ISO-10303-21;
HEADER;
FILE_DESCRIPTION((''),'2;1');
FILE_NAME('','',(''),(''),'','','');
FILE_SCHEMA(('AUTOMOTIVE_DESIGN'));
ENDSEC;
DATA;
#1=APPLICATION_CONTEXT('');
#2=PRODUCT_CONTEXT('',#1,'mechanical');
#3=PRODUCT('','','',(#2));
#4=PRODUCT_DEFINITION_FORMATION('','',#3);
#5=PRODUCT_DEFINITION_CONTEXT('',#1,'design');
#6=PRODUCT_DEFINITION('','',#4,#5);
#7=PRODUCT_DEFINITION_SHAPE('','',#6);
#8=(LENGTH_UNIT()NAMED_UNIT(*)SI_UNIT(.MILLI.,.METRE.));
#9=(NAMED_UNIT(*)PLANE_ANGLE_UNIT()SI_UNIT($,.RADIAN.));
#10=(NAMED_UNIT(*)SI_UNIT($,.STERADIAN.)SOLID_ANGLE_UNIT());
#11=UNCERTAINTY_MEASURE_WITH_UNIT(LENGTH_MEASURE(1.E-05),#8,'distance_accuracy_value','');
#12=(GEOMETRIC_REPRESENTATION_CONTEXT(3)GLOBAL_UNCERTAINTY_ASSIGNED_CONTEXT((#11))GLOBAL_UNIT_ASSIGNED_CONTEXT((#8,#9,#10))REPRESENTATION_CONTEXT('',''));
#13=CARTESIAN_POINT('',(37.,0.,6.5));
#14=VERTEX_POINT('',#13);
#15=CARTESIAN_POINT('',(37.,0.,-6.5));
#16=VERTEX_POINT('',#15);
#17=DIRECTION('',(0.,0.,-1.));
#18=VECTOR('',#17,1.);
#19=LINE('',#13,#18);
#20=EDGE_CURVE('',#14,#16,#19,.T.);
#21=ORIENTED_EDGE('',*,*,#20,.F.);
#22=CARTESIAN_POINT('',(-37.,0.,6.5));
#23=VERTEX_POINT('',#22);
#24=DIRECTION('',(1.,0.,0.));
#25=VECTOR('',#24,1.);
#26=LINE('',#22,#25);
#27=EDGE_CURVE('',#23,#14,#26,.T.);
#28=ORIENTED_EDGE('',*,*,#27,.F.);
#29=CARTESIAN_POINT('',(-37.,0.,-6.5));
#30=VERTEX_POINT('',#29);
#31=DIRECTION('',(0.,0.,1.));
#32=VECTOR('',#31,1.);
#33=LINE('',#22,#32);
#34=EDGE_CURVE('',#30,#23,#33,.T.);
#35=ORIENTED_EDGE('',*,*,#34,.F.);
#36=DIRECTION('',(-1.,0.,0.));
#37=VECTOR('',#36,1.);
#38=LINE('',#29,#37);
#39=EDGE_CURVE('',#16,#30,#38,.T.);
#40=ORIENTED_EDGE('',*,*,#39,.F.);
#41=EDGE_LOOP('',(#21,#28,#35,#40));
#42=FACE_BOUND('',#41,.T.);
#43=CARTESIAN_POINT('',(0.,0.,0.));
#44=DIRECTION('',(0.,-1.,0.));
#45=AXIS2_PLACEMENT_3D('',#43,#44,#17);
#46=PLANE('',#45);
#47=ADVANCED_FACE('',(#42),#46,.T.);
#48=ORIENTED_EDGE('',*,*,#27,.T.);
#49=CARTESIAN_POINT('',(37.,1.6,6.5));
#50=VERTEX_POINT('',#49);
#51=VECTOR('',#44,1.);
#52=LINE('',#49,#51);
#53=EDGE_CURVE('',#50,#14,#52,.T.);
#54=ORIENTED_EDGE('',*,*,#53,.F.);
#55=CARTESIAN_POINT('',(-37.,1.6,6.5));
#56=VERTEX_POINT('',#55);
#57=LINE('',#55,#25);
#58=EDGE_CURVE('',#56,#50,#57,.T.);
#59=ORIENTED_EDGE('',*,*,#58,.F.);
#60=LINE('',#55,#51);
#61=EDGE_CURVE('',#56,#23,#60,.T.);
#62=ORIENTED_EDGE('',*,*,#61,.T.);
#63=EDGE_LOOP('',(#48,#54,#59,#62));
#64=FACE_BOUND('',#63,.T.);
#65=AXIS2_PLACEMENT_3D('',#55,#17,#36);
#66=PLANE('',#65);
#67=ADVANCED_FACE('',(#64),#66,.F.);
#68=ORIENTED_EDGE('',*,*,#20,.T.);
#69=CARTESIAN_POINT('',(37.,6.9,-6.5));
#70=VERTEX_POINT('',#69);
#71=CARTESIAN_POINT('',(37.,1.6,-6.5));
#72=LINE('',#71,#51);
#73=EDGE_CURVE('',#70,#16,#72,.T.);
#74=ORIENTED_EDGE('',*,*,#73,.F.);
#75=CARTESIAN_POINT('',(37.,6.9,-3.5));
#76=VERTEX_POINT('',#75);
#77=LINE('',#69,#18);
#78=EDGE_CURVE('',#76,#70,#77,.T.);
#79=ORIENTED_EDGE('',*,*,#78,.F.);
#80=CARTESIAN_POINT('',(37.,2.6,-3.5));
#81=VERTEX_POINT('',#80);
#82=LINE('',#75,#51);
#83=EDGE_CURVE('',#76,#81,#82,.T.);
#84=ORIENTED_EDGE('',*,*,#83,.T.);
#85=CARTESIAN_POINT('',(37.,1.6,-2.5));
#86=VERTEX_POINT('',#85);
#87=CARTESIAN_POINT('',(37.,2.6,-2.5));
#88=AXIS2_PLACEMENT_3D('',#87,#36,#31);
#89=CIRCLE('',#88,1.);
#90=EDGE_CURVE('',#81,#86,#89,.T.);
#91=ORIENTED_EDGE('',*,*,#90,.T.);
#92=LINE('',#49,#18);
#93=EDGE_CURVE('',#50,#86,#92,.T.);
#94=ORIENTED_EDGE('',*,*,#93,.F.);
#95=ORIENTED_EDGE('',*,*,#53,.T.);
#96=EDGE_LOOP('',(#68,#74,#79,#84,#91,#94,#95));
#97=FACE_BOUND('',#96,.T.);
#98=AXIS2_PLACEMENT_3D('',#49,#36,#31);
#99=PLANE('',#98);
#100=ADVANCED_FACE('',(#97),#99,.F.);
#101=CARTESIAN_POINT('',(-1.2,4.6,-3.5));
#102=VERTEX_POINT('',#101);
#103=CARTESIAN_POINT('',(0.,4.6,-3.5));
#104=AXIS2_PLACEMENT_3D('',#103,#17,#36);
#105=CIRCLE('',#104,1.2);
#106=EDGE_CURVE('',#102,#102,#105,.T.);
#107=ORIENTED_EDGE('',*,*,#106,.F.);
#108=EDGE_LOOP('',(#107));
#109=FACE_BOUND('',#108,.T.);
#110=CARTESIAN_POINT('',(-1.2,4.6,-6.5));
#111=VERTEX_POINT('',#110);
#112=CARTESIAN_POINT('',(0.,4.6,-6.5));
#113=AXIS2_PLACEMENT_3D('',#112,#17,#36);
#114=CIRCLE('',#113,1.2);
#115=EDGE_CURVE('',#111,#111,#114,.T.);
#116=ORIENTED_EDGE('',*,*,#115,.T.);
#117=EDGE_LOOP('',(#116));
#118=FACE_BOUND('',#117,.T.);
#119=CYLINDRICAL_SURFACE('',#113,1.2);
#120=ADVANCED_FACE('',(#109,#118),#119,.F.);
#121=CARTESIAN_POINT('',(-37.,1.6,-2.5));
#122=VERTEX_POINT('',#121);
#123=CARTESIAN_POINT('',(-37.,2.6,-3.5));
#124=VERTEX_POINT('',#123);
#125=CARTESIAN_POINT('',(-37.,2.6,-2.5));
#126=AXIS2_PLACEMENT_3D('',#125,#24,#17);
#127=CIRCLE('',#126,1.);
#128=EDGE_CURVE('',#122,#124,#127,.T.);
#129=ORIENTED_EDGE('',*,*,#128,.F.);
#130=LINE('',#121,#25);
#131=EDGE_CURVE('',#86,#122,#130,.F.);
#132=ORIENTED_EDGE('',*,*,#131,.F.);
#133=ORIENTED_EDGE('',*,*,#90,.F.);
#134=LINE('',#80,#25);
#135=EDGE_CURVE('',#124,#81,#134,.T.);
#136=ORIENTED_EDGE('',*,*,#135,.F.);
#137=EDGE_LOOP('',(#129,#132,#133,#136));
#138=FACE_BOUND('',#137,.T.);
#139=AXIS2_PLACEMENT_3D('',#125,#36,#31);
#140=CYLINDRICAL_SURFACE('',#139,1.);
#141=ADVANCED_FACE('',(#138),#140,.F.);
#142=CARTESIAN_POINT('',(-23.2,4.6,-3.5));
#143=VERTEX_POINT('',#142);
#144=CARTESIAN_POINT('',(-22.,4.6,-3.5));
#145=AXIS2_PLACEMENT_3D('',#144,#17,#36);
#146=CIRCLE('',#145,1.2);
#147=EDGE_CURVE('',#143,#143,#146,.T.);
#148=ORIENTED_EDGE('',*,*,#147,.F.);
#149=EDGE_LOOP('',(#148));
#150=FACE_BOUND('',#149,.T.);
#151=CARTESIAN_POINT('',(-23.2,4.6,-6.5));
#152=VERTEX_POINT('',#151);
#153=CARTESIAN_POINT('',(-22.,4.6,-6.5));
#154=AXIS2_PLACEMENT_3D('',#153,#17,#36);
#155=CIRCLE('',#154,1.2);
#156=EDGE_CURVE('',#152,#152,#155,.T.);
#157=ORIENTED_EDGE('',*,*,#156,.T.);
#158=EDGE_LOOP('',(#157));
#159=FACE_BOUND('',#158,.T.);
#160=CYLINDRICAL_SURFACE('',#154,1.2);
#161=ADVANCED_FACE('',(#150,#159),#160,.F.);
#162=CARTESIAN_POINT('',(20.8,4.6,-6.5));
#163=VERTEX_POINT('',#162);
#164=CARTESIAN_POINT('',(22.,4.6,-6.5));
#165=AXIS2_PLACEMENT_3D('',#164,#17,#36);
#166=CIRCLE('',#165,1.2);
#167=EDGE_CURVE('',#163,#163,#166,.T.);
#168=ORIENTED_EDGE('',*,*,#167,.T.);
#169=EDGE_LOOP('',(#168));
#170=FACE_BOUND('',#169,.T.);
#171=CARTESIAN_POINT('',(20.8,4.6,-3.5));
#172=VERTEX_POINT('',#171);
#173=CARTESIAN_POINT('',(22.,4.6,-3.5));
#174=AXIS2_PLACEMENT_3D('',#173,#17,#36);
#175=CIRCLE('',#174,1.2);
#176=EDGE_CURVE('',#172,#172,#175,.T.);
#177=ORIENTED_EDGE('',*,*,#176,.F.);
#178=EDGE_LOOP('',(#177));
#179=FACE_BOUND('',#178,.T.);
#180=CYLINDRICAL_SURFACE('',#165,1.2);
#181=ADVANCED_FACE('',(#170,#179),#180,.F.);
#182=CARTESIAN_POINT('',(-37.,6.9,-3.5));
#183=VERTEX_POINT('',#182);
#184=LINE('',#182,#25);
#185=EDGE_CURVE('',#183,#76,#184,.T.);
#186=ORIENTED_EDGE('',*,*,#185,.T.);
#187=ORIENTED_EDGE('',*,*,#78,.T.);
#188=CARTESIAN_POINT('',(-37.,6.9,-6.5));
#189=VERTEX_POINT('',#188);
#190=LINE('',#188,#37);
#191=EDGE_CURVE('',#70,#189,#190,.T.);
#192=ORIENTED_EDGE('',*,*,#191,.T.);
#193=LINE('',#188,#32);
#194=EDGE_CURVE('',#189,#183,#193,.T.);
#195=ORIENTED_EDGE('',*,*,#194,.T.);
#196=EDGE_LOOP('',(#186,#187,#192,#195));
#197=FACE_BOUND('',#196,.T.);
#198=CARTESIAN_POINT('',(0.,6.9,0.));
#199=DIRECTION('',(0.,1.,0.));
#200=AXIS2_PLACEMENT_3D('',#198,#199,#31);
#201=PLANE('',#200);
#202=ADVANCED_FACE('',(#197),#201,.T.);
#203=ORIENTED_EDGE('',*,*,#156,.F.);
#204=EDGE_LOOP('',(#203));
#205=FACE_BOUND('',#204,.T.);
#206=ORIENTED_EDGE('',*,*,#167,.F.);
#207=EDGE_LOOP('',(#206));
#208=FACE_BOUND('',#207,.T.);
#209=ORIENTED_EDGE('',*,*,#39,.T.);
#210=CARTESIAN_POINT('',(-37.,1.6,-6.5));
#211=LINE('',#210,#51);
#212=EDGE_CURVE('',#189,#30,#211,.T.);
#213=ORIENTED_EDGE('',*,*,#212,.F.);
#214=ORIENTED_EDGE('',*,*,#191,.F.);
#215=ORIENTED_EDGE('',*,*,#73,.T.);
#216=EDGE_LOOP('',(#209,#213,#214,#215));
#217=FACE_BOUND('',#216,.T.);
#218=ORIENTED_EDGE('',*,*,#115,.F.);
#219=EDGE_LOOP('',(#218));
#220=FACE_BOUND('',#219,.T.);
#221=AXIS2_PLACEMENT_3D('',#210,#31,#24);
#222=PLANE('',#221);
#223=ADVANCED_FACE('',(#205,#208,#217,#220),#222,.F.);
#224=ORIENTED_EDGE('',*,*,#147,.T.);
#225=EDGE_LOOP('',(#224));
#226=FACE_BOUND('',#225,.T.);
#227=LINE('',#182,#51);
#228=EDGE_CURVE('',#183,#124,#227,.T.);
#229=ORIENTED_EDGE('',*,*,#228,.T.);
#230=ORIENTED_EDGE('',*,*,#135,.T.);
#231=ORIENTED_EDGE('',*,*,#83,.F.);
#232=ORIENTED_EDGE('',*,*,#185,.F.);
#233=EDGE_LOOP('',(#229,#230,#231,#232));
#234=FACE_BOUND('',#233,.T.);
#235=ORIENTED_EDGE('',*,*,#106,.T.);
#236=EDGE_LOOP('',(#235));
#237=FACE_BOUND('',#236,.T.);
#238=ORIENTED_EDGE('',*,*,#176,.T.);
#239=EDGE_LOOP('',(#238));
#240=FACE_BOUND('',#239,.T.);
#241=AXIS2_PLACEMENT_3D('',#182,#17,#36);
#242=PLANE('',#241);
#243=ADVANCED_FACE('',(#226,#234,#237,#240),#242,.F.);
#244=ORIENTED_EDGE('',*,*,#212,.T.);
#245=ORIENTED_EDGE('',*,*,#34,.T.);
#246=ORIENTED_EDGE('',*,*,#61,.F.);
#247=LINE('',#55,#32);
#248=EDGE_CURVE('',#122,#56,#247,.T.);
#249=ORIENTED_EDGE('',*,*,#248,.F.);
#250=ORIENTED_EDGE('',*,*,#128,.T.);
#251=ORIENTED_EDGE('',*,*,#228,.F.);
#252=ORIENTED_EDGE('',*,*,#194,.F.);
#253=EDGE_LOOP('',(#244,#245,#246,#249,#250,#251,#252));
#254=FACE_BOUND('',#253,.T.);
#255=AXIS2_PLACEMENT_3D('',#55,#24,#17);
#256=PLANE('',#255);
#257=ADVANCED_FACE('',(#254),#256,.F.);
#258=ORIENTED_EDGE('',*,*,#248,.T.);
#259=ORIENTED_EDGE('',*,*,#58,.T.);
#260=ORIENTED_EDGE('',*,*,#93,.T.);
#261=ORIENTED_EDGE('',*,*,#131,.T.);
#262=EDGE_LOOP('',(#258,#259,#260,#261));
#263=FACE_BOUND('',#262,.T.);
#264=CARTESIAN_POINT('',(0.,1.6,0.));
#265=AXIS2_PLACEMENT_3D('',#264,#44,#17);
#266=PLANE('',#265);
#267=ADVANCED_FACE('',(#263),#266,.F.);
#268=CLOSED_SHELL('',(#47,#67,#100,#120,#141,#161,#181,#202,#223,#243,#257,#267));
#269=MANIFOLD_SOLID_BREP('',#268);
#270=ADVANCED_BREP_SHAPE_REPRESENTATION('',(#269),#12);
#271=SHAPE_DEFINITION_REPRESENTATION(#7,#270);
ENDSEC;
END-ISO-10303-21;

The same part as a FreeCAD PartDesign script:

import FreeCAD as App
import Part
import Sketcher

V = App.Vector
Q = App.Units.Quantity


def edges_at(feature, points):
    """Names of the edges that pass closest to the given points."""
    edges = feature.Shape.Edges
    near = lambda p: min(range(len(edges)), key=lambda i: edges[i].distToShape(Part.Vertex(*p))[0])
    return sorted({f"Edge{near(p) + 1}" for p in points})


def add_polygon(sketch, points):
    """Adds a closed chain of lines whose ends are joined by coincident constraints."""
    first, n = sketch.GeometryCount, len(points)
    for a, b in zip(points, points[1:] + points[:1]):
        sketch.addGeometry(Part.LineSegment(App.Vector(*a, 0), App.Vector(*b, 0)), False)
    for i in range(n):
        sketch.addConstraint(Sketcher.Constraint("Coincident", first + i, 2, first + (i + 1) % n, 1))

doc = App.newDocument("Part")
params = doc.addObject("Spreadsheet::Sheet", "Params")
for row, (alias, value) in enumerate([
    ("sketch1_width", "74 mm"),
    ("sketch1_height", "13 mm"),
    ("pad1_length", "1.6 mm"),
    ("sketch2_width", "74 mm"),
    ("sketch2_height", "3 mm"),
    ("pad2_length", "5.3 mm"),
    ("fillet_radius", "1 mm"),
    ("sketch3_diameter", "2.4 mm"),
    ("hole_diameter", "2.4 mm"),
], start=1):
    params.set(f"A{row}", alias)
    params.set(f"B{row}", "=" + value)
    params.setAlias(f"B{row}", alias)

body = doc.addObject("PartDesign::Body", "Body")

sketch1 = doc.addObject("Sketcher::SketchObject", "Sketch")
body.addObject(sketch1)
sketch1.AttachmentSupport = (doc.XZ_Plane, [""])
sketch1.MapMode = "FlatFace"
add_polygon(sketch1, [(-37, -6), (-37, 6), (37, 6), (37, -6)])
sketch1.addConstraint([
    Sketcher.Constraint("Vertical", 0),
    Sketcher.Constraint("Horizontal", 1),
    Sketcher.Constraint("Vertical", 2),
    Sketcher.Constraint("Horizontal", 3),
    Sketcher.Constraint("Symmetric", 0, 2, 2, 2, -1, 1),
    Sketcher.Constraint("DistanceX", 1, 1, 1, 2, Q("74 mm")),
    Sketcher.Constraint("DistanceY", 0, 1, 0, 2, Q("13 mm")),
])
sketch1.setExpression("Constraints[9]", "Params.sketch1_width")
sketch1.setExpression("Constraints[10]", "Params.sketch1_height")
pad1 = doc.addObject("PartDesign::Pad", "Pad")
body.addObject(pad1)
pad1.Profile = sketch1
pad1.setExpression("Length", "Params.pad1_length")
pad1.Reversed = True

sketch2 = doc.addObject("Sketcher::SketchObject", "Sketch001")
body.addObject(sketch2)
sketch2.AttachmentSupport = (doc.XZ_Plane, [""])
sketch2.MapMode = "FlatFace"
sketch2.AttachmentOffset = App.Placement(V(0, 0, -1.6), App.Rotation())
add_polygon(sketch2, [(-37, -6.5), (-37, -3.5), (37, -3.5), (37, -6.5)])
sketch2.addConstraint([
    Sketcher.Constraint("Vertical", 0),
    Sketcher.Constraint("Horizontal", 1),
    Sketcher.Constraint("Vertical", 2),
    Sketcher.Constraint("Horizontal", 3),
    Sketcher.Constraint("DistanceX", 1, 1, 1, 2, Q("74 mm")),
    Sketcher.Constraint("DistanceY", 0, 1, 0, 2, Q("3 mm")),
    Sketcher.Constraint("DistanceX", 0, 2, -1, 1, Q("37 mm")),
    Sketcher.Constraint("DistanceY", 0, 2, -1, 1, Q("3.5 mm")),
])
sketch2.setExpression("Constraints[8]", "Params.sketch2_width")
sketch2.setExpression("Constraints[9]", "Params.sketch2_height")
pad2 = doc.addObject("PartDesign::Pad", "Pad001")
body.addObject(pad2)
pad2.Profile = sketch2
pad2.setExpression("Length", "Params.pad2_length")
pad2.Reversed = True
doc.recompute()

fillet = doc.addObject("PartDesign::Fillet", "Fillet")
body.addObject(fillet)
fillet.Base = (pad2, edges_at(pad2, [(0, 1.6, -3.5)]))
fillet.setExpression("Radius", "Params.fillet_radius")

sketch3 = doc.addObject("Sketcher::SketchObject", "Sketch002")
body.addObject(sketch3)
sketch3.AttachmentSupport = (doc.XY_Plane, [""])
sketch3.MapMode = "FlatFace"
sketch3.AttachmentOffset = App.Placement(V(0, 0, -6.5), App.Rotation())
sketch3.addGeometry([
    Part.Circle(V(-22, 4.6, 0), V(0, 0, 1), 1.2),
    Part.Circle(V(0, 4.6, 0), V(0, 0, 1), 1.2),
    Part.Circle(V(22, 4.6, 0), V(0, 0, 1), 1.2),
], False)
sketch3.addConstraint([
    Sketcher.Constraint("Equal", 0, 1),
    Sketcher.Constraint("Equal", 1, 2),
    Sketcher.Constraint("Symmetric", 0, 3, 2, 3, -2),
    Sketcher.Constraint("PointOnObject", 1, 3, -2),
    Sketcher.Constraint("Horizontal", 0, 3, 1, 3),
    Sketcher.Constraint("Diameter", 0, Q("2.4 mm")),
    Sketcher.Constraint("DistanceX", 0, 3, -1, 1, Q("22 mm")),
    Sketcher.Constraint("DistanceY", -1, 1, 0, 3, Q("4.6 mm")),
])
sketch3.setExpression("Constraints[5]", "Params.sketch3_diameter")
doc.recompute()
hole = doc.addObject("PartDesign::Hole", "Hole")
body.addObject(hole)
hole.Profile = sketch3
hole.ThreadType = "None"
hole.setExpression("Diameter", "Params.hole_diameter")
hole.DepthType = "ThroughAll"
hole.Reversed = True

doc.recompute()
